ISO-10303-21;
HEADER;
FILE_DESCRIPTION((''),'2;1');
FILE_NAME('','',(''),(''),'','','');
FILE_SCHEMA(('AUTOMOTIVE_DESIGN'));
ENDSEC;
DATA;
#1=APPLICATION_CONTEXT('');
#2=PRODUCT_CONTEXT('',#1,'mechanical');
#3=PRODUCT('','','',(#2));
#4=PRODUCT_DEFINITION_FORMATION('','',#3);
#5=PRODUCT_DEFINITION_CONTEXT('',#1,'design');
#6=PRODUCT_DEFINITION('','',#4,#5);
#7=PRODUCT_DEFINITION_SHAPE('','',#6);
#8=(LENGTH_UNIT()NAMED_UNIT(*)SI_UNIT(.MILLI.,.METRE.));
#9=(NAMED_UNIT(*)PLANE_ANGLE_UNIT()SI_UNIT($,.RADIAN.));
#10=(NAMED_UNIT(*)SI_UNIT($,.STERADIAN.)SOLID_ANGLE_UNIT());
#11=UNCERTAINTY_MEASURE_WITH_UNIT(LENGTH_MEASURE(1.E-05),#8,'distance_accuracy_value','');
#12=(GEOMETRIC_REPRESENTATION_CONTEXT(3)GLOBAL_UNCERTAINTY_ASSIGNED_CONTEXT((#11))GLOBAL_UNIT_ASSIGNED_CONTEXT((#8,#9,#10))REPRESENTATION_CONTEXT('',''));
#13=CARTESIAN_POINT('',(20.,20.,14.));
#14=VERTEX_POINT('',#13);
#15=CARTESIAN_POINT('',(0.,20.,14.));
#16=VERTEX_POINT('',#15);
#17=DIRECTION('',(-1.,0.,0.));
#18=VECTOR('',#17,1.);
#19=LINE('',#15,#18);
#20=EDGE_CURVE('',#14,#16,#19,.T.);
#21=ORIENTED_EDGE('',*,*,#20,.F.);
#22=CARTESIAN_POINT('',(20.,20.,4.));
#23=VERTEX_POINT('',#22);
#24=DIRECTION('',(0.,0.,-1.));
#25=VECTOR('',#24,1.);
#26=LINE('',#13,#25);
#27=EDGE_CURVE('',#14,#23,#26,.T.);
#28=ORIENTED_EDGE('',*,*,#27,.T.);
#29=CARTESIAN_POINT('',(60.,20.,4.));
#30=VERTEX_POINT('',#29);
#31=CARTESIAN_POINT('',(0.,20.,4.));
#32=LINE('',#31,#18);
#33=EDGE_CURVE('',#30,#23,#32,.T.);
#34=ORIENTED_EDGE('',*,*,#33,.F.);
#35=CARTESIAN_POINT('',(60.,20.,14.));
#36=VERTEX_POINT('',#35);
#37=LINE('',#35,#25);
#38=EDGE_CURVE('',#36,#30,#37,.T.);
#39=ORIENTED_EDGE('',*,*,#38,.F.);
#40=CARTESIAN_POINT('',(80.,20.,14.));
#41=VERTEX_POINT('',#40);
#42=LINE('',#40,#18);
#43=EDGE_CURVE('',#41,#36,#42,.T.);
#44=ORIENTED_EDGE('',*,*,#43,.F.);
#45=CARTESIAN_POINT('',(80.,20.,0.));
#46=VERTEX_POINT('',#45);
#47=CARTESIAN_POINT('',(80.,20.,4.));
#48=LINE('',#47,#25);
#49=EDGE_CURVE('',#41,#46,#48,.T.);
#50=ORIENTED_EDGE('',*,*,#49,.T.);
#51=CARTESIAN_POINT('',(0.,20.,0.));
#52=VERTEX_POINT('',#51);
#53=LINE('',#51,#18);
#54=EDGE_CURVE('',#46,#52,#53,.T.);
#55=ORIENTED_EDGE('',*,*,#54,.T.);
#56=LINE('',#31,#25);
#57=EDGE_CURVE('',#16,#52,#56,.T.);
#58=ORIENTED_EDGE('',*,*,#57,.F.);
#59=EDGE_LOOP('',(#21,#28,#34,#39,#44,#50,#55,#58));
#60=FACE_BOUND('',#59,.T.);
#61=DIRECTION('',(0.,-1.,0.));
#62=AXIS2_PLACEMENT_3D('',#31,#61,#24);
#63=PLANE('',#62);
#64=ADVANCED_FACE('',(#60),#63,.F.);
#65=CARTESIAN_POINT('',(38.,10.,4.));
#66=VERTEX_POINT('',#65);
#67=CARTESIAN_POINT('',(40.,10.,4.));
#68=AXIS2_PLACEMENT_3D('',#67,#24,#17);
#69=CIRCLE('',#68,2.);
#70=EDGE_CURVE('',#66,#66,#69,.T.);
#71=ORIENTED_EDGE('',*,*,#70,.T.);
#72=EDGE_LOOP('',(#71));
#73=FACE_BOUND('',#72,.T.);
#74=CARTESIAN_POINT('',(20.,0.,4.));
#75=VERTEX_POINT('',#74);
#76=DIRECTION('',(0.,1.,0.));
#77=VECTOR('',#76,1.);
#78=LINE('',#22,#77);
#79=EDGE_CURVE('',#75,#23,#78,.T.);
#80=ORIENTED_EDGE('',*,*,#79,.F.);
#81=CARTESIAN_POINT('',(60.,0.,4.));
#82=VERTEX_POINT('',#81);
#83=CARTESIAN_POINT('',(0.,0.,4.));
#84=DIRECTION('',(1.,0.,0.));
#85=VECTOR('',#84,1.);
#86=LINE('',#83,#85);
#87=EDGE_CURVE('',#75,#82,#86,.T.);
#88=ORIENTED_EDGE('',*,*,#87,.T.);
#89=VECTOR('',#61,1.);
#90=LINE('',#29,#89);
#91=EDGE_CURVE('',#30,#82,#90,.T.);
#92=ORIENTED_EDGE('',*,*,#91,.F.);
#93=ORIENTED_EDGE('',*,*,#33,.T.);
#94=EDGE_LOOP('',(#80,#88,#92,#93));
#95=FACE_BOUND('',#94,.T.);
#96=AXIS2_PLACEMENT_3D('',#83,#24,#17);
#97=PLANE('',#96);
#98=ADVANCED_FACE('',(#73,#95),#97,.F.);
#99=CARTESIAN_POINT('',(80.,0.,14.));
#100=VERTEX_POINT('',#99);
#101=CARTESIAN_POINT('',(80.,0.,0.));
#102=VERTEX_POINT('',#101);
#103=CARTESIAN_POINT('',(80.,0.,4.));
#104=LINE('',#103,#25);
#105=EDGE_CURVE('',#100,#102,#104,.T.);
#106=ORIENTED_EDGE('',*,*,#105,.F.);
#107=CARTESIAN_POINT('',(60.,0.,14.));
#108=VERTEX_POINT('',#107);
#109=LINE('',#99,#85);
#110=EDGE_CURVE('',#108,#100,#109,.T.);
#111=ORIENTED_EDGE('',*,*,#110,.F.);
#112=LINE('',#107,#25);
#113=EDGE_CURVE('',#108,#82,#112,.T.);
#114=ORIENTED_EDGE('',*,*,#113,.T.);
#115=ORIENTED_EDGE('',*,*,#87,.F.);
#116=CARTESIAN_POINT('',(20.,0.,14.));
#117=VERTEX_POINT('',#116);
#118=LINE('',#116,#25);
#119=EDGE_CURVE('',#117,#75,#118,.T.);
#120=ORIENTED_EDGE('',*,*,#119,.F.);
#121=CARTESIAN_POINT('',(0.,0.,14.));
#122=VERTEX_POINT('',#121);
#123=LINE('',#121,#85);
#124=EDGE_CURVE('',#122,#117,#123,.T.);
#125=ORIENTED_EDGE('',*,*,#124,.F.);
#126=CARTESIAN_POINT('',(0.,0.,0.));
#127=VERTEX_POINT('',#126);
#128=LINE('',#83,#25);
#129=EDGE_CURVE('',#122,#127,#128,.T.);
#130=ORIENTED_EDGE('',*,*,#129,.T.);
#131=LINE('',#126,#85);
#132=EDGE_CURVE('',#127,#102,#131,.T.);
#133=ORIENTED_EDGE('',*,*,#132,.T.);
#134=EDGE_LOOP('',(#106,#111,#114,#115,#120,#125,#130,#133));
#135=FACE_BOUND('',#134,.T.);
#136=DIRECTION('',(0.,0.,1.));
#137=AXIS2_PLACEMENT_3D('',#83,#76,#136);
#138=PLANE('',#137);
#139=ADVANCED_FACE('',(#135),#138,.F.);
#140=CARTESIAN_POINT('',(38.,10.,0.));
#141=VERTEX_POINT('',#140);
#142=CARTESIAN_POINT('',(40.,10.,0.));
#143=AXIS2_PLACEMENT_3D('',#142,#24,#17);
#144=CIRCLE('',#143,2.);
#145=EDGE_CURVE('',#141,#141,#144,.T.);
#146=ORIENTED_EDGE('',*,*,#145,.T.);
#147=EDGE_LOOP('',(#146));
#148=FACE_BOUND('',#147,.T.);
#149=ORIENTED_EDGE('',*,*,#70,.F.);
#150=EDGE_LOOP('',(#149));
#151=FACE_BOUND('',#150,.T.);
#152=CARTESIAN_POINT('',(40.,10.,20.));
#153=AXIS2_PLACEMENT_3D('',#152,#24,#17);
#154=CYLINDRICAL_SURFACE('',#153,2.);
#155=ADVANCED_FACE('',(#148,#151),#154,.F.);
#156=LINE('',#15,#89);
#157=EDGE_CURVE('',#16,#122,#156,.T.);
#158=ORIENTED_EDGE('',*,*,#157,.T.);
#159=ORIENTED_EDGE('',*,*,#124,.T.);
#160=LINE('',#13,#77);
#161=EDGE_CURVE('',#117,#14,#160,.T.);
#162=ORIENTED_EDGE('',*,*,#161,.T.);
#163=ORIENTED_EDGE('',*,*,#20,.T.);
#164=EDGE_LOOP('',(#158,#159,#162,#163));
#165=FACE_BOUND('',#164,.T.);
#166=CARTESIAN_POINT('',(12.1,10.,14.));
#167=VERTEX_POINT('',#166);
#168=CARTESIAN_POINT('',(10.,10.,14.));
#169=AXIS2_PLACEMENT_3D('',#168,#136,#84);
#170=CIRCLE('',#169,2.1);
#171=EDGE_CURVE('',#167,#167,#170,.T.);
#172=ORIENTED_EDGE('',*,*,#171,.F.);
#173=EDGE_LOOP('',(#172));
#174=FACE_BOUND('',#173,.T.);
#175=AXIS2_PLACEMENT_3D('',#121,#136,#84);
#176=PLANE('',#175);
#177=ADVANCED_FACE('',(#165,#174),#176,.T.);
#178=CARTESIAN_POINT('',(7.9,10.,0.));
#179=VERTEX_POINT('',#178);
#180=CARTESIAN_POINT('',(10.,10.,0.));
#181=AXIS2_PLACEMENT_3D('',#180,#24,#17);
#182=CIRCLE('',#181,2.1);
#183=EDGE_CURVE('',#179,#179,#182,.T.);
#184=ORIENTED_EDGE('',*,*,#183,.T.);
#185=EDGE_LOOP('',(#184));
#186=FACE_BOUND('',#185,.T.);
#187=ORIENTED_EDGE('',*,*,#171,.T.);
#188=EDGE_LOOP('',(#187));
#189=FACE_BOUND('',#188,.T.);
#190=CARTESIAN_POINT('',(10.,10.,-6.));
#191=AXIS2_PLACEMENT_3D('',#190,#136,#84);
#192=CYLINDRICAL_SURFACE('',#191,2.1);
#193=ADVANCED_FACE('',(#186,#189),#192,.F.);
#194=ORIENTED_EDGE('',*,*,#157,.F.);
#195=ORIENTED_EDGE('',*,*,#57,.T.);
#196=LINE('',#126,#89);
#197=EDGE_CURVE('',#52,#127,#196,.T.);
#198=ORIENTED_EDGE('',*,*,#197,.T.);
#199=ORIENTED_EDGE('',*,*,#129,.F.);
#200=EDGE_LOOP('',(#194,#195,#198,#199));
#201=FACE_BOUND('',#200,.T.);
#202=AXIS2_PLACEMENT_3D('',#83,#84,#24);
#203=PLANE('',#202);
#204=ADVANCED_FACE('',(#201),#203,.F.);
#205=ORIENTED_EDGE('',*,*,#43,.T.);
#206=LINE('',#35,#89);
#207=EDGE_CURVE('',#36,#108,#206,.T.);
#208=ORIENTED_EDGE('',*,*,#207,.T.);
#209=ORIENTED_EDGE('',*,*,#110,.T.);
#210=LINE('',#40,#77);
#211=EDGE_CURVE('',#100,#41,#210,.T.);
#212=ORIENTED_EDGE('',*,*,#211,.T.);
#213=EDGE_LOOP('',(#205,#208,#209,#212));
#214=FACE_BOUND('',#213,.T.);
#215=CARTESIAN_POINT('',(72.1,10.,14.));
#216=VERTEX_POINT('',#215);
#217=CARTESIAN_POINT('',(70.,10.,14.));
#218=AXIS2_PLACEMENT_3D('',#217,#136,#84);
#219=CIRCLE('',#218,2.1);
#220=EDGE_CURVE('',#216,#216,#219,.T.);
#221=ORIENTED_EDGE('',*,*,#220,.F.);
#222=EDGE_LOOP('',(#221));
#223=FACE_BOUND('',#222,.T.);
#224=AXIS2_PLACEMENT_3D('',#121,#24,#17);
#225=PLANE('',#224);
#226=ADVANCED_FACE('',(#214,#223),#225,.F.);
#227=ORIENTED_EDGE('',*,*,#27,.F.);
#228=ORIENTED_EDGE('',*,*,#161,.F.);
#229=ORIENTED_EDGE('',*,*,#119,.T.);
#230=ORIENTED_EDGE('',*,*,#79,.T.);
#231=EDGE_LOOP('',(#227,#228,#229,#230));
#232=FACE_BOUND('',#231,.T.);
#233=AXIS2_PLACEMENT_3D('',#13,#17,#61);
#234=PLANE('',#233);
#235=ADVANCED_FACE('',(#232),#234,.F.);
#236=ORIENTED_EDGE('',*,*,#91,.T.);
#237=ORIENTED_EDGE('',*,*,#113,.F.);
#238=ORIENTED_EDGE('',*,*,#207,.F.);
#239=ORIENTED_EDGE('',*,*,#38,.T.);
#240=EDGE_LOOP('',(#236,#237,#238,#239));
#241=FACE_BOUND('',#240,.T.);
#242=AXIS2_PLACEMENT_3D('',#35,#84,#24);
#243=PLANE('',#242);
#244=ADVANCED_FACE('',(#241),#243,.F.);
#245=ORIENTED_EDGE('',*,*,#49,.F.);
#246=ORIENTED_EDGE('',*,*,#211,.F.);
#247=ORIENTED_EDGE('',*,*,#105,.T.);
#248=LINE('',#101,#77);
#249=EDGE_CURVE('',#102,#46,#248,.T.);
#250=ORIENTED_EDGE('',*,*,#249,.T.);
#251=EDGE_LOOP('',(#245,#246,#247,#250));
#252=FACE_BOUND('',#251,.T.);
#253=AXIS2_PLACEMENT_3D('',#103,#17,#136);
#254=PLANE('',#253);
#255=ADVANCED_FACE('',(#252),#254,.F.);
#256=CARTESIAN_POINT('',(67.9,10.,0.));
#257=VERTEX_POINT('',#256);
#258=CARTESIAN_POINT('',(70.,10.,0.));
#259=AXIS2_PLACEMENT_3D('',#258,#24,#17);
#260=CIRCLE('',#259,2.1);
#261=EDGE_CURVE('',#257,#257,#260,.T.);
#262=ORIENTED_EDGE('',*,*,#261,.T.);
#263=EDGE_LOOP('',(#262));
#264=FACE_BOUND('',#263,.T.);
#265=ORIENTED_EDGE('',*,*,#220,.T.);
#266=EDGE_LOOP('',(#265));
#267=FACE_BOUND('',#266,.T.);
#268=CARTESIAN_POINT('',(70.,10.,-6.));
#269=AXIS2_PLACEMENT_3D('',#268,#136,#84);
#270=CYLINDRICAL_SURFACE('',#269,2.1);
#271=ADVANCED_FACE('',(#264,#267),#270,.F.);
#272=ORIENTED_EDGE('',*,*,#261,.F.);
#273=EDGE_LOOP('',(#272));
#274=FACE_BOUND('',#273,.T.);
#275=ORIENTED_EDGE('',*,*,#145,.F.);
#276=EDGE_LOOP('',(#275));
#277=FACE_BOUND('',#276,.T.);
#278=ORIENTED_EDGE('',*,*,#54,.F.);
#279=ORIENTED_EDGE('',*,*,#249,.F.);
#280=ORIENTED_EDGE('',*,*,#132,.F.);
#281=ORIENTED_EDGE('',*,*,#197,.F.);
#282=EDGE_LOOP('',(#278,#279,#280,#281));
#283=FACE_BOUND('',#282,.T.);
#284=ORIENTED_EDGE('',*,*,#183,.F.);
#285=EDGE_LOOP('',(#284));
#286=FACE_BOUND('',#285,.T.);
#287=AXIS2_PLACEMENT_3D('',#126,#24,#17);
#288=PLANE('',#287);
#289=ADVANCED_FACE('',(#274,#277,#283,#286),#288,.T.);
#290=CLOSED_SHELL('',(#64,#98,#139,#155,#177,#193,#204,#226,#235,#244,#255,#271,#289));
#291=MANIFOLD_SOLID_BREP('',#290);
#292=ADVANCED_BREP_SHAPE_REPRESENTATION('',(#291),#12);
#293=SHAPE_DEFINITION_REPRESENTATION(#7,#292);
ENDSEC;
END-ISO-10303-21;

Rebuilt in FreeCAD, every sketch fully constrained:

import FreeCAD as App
import Part
import Sketcher

V = App.Vector


def add_polygon(sketch, points):
    """Adds a closed chain of lines whose ends are joined by coincident constraints."""
    first, n = sketch.GeometryCount, len(points)
    for a, b in zip(points, points[1:] + points[:1]):
        sketch.addGeometry(Part.LineSegment(App.Vector(*a, 0), App.Vector(*b, 0)), False)
    for i in range(n):
        sketch.addConstraint(Sketcher.Constraint("Coincident", first + i, 2, first + (i + 1) % n, 1))

doc = App.newDocument("Part")
body = doc.addObject("PartDesign::Body", "Body")

sketch1 = doc.addObject("Sketcher::SketchObject", "Sketch")
body.addObject(sketch1)
sketch1.AttachmentSupport = (doc.XY_Plane, [""])
sketch1.MapMode = "FlatFace"
add_polygon(sketch1, [(0, 20), (0, 0), (80, 0), (80, 20)])
sketch1.addConstraint(Sketcher.Constraint("Vertical", 0))
sketch1.addConstraint(Sketcher.Constraint("Horizontal", 1))
sketch1.addConstraint(Sketcher.Constraint("Vertical", 2))
sketch1.addConstraint(Sketcher.Constraint("Horizontal", 3))
sketch1.addConstraint(Sketcher.Constraint("Coincident", 0, 2, -1, 1))
sketch1.addConstraint(Sketcher.Constraint("DistanceX", 1, 1, 1, 2, 80.0))
sketch1.addConstraint(Sketcher.Constraint("DistanceY", 0, 2, 0, 1, 20.0))
pad1 = doc.addObject("PartDesign::Pad", "Pad")
body.addObject(pad1)
pad1.Profile = sketch1
pad1.Length = 4

sketch2 = doc.addObject("Sketcher::SketchObject", "Sketch001")
body.addObject(sketch2)
sketch2.AttachmentSupport = (doc.XY_Plane, [""])
sketch2.MapMode = "FlatFace"
sketch2.AttachmentOffset = App.Placement(V(0, 0, 4), App.Rotation())
add_polygon(sketch2, [(0, 20), (0, 0), (20, 0), (20, 20)])
add_polygon(sketch2, [(60, 20), (60, 0), (80, 0), (80, 20)])
sketch2.addConstraint(Sketcher.Constraint("Vertical", 0))
sketch2.addConstraint(Sketcher.Constraint("Horizontal", 1))
sketch2.addConstraint(Sketcher.Constraint("Vertical", 2))
sketch2.addConstraint(Sketcher.Constraint("Horizontal", 3))
sketch2.addConstraint(Sketcher.Constraint("Vertical", 4))
sketch2.addConstraint(Sketcher.Constraint("Horizontal", 5))
sketch2.addConstraint(Sketcher.Constraint("Vertical", 6))
sketch2.addConstraint(Sketcher.Constraint("Horizontal", 7))
sketch2.addConstraint(Sketcher.Constraint("Coincident", 0, 2, -1, 1))
sketch2.addConstraint(Sketcher.Constraint("PointOnObject", 4, 2, -1))
sketch2.addConstraint(Sketcher.Constraint("Horizontal", 3, 2, 6, 2))
sketch2.addConstraint(Sketcher.Constraint("Equal", 3, 5))
sketch2.addConstraint(Sketcher.Constraint("Equal", 7, 0))
sketch2.addConstraint(Sketcher.Constraint("DistanceX", 1, 1, 1, 2, 20.0))
sketch2.addConstraint(Sketcher.Constraint("DistanceX", -1, 1, 4, 2, 60.0))
pad2 = doc.addObject("PartDesign::Pad", "Pad001")
body.addObject(pad2)
pad2.Profile = sketch2
pad2.Length = 10

sketch3 = doc.addObject("Sketcher::SketchObject", "Sketch002")
body.addObject(sketch3)
sketch3.AttachmentSupport = (doc.XY_Plane, [""])
sketch3.MapMode = "FlatFace"
sketch3.AttachmentOffset = App.Placement(V(0, 0, 14), App.Rotation())
sketch3.addGeometry(Part.Circle(V(10, 10, 0), V(0, 0, 1), 2.1), False)
sketch3.addGeometry(Part.Circle(V(70, 10, 0), V(0, 0, 1), 2.1), False)
sketch3.addConstraint(Sketcher.Constraint("Equal", 0, 1))
sketch3.addConstraint(Sketcher.Constraint("Horizontal", 0, 3, 1, 3))
sketch3.addConstraint(Sketcher.Constraint("Diameter", 0, 4.2))
sketch3.addConstraint(Sketcher.Constraint("DistanceX", -1, 1, 0, 3, 10.0))
sketch3.addConstraint(Sketcher.Constraint("DistanceY", -1, 1, 0, 3, 10.0))
sketch3.addConstraint(Sketcher.Constraint("DistanceX", -1, 1, 1, 3, 70.0))
pocket1 = doc.addObject("PartDesign::Pocket", "Pocket")
body.addObject(pocket1)
pocket1.Profile = sketch3
pocket1.Length = 20

sketch4 = doc.addObject("Sketcher::SketchObject", "Sketch003")
body.addObject(sketch4)
sketch4.AttachmentSupport = (doc.XY_Plane, [""])
sketch4.MapMode = "FlatFace"
sketch4.addGeometry(Part.Circle(V(40, 10, 0), V(0, 0, 1), 2), False)
sketch4.addConstraint(Sketcher.Constraint("Diameter", 0, 4.0))
sketch4.addConstraint(Sketcher.Constraint("DistanceX", -1, 1, 0, 3, 40.0))
sketch4.addConstraint(Sketcher.Constraint("DistanceY", -1, 1, 0, 3, 10.0))
pocket2 = doc.addObject("PartDesign::Pocket", "Pocket001")
body.addObject(pocket2)
pocket2.Profile = sketch4
pocket2.Length = 20
pocket2.Reversed = True

doc.recompute()
